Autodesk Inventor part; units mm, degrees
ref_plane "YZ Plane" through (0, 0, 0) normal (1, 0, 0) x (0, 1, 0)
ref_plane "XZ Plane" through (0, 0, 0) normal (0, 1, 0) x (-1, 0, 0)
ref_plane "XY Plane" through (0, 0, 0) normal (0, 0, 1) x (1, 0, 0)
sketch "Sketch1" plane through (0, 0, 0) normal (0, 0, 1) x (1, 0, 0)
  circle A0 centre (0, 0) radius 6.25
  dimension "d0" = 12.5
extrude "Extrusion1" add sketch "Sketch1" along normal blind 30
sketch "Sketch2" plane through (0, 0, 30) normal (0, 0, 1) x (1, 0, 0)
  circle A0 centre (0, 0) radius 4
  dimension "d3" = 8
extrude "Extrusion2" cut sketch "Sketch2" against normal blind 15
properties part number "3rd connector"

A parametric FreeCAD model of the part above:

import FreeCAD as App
import Part
import Sketcher

doc = App.newDocument("Part")
body = doc.addObject("PartDesign::Body", "Body")

# Sketch on XY plane
sketch1 = body.newObject("Sketcher::SketchObject", "Sketch")
sketch1.AttachmentSupport = (doc.getObject("XY_Plane"), [""])
sketch1.MapMode = "FlatFace"
sketch1.addGeometry(Part.Circle(App.Vector(0, 0, 0), App.Vector(0, 0, 1), 6), False)
sketch1.addConstraint([
    Sketcher.Constraint("Coincident", 0, 3, -1, 1),
    Sketcher.Constraint("Diameter", 0, 12.5),
])
pad1 = body.newObject("PartDesign::Pad", "Pad")
pad1.Profile = sketch1
pad1.Length = 30

# Sketch on XY plane
sketch2 = body.newObject("Sketcher::SketchObject", "Sketch001")
sketch2.AttachmentSupport = (doc.getObject("XY_Plane"), [""])
sketch2.MapMode = "FlatFace"
sketch2.AttachmentOffset = App.Placement(App.Vector(0, 0, 30), App.Rotation())
sketch2.addGeometry(Part.Circle(App.Vector(0, 0, 0), App.Vector(0, 0, 1), 4), False)
sketch2.addConstraint([
    Sketcher.Constraint("Coincident", 0, 3, -1, 1),
    Sketcher.Constraint("Diameter", 0, 8.0),
])
pocket1 = body.newObject("PartDesign::Pocket", "Pocket")
pocket1.Profile = sketch2
pocket1.Length = 15

doc.recompute()
